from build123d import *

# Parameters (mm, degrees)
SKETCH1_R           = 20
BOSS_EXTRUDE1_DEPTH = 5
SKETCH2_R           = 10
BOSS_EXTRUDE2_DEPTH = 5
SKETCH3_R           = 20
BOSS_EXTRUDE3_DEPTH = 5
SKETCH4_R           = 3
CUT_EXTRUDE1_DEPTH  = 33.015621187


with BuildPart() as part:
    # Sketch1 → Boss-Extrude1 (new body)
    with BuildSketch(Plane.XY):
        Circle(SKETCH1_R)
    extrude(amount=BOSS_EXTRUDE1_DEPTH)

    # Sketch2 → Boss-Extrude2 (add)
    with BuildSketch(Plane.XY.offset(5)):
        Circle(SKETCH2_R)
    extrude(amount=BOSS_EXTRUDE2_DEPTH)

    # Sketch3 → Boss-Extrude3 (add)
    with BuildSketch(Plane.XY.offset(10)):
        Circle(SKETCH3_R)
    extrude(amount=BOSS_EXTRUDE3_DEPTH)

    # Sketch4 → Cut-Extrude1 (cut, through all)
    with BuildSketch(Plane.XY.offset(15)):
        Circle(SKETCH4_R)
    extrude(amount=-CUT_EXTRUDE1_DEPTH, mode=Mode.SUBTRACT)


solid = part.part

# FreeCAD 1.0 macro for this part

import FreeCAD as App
import Part
import Sketcher

V = App.Vector
Q = App.Units.Quantity

doc = App.newDocument("Part")
body = doc.addObject("PartDesign::Body", "Body")

# Sketch on XY plane
sketch1 = body.newObject("Sketcher::SketchObject", "Sketch")
sketch1.AttachmentSupport = (doc.getObject("XY_Plane"), [""])
sketch1.MapMode = "FlatFace"
sketch1.addGeometry(Part.Circle(V(0, 0, 0), V(0, 0, 1), 20), False)
sketch1.addConstraint([
    Sketcher.Constraint("Coincident", 0, 3, -1, 1),
    Sketcher.Constraint("Diameter", 0, Q("40 mm")),
])
pad1 = body.newObject("PartDesign::Pad", "Pad")
pad1.Profile = sketch1
pad1.Length = 5

# Sketch on XY plane
sketch2 = body.newObject("Sketcher::SketchObject", "Sketch001")
sketch2.AttachmentSupport = (doc.getObject("XY_Plane"), [""])
sketch2.MapMode = "FlatFace"
sketch2.AttachmentOffset = App.Placement(V(0, 0, 5), App.Rotation())
sketch2.addGeometry(Part.Circle(V(0, 0, 0), V(0, 0, 1), 10), False)
sketch2.addConstraint([
    Sketcher.Constraint("Coincident", 0, 3, -1, 1),
    Sketcher.Constraint("Diameter", 0, Q("20 mm")),
])
pad2 = body.newObject("PartDesign::Pad", "Pad001")
pad2.Profile = sketch2
pad2.Length = 5

# Sketch on XY plane
sketch3 = body.newObject("Sketcher::SketchObject", "Sketch002")
sketch3.AttachmentSupport = (doc.getObject("XY_Plane"), [""])
sketch3.MapMode = "FlatFace"
sketch3.AttachmentOffset = App.Placement(V(0, 0, 10), App.Rotation())
sketch3.addGeometry(Part.Circle(V(0, 0, 0), V(0, 0, 1), 20), False)
sketch3.addConstraint([
    Sketcher.Constraint("Coincident", 0, 3, -1, 1),
    Sketcher.Constraint("Diameter", 0, Q("40 mm")),
])
pad3 = body.newObject("PartDesign::Pad", "Pad002")
pad3.Profile = sketch3
pad3.Length = 5

# Sketch on XY plane
sketch4 = body.newObject("Sketcher::SketchObject", "Sketch003")
sketch4.AttachmentSupport = (doc.getObject("XY_Plane"), [""])
sketch4.MapMode = "FlatFace"
sketch4.AttachmentOffset = App.Placement(V(0, 0, 15), App.Rotation())
sketch4.addGeometry(Part.Circle(V(0, 0, 0), V(0, 0, 1), 3), False)
sketch4.addConstraint([
    Sketcher.Constraint("Coincident", 0, 3, -1, 1),
    Sketcher.Constraint("Diameter", 0, Q("6 mm")),
])
pocket1 = body.newObject("PartDesign::Pocket", "Pocket")
pocket1.Profile = sketch4
pocket1.Type = "ThroughAll"

doc.recompute()
